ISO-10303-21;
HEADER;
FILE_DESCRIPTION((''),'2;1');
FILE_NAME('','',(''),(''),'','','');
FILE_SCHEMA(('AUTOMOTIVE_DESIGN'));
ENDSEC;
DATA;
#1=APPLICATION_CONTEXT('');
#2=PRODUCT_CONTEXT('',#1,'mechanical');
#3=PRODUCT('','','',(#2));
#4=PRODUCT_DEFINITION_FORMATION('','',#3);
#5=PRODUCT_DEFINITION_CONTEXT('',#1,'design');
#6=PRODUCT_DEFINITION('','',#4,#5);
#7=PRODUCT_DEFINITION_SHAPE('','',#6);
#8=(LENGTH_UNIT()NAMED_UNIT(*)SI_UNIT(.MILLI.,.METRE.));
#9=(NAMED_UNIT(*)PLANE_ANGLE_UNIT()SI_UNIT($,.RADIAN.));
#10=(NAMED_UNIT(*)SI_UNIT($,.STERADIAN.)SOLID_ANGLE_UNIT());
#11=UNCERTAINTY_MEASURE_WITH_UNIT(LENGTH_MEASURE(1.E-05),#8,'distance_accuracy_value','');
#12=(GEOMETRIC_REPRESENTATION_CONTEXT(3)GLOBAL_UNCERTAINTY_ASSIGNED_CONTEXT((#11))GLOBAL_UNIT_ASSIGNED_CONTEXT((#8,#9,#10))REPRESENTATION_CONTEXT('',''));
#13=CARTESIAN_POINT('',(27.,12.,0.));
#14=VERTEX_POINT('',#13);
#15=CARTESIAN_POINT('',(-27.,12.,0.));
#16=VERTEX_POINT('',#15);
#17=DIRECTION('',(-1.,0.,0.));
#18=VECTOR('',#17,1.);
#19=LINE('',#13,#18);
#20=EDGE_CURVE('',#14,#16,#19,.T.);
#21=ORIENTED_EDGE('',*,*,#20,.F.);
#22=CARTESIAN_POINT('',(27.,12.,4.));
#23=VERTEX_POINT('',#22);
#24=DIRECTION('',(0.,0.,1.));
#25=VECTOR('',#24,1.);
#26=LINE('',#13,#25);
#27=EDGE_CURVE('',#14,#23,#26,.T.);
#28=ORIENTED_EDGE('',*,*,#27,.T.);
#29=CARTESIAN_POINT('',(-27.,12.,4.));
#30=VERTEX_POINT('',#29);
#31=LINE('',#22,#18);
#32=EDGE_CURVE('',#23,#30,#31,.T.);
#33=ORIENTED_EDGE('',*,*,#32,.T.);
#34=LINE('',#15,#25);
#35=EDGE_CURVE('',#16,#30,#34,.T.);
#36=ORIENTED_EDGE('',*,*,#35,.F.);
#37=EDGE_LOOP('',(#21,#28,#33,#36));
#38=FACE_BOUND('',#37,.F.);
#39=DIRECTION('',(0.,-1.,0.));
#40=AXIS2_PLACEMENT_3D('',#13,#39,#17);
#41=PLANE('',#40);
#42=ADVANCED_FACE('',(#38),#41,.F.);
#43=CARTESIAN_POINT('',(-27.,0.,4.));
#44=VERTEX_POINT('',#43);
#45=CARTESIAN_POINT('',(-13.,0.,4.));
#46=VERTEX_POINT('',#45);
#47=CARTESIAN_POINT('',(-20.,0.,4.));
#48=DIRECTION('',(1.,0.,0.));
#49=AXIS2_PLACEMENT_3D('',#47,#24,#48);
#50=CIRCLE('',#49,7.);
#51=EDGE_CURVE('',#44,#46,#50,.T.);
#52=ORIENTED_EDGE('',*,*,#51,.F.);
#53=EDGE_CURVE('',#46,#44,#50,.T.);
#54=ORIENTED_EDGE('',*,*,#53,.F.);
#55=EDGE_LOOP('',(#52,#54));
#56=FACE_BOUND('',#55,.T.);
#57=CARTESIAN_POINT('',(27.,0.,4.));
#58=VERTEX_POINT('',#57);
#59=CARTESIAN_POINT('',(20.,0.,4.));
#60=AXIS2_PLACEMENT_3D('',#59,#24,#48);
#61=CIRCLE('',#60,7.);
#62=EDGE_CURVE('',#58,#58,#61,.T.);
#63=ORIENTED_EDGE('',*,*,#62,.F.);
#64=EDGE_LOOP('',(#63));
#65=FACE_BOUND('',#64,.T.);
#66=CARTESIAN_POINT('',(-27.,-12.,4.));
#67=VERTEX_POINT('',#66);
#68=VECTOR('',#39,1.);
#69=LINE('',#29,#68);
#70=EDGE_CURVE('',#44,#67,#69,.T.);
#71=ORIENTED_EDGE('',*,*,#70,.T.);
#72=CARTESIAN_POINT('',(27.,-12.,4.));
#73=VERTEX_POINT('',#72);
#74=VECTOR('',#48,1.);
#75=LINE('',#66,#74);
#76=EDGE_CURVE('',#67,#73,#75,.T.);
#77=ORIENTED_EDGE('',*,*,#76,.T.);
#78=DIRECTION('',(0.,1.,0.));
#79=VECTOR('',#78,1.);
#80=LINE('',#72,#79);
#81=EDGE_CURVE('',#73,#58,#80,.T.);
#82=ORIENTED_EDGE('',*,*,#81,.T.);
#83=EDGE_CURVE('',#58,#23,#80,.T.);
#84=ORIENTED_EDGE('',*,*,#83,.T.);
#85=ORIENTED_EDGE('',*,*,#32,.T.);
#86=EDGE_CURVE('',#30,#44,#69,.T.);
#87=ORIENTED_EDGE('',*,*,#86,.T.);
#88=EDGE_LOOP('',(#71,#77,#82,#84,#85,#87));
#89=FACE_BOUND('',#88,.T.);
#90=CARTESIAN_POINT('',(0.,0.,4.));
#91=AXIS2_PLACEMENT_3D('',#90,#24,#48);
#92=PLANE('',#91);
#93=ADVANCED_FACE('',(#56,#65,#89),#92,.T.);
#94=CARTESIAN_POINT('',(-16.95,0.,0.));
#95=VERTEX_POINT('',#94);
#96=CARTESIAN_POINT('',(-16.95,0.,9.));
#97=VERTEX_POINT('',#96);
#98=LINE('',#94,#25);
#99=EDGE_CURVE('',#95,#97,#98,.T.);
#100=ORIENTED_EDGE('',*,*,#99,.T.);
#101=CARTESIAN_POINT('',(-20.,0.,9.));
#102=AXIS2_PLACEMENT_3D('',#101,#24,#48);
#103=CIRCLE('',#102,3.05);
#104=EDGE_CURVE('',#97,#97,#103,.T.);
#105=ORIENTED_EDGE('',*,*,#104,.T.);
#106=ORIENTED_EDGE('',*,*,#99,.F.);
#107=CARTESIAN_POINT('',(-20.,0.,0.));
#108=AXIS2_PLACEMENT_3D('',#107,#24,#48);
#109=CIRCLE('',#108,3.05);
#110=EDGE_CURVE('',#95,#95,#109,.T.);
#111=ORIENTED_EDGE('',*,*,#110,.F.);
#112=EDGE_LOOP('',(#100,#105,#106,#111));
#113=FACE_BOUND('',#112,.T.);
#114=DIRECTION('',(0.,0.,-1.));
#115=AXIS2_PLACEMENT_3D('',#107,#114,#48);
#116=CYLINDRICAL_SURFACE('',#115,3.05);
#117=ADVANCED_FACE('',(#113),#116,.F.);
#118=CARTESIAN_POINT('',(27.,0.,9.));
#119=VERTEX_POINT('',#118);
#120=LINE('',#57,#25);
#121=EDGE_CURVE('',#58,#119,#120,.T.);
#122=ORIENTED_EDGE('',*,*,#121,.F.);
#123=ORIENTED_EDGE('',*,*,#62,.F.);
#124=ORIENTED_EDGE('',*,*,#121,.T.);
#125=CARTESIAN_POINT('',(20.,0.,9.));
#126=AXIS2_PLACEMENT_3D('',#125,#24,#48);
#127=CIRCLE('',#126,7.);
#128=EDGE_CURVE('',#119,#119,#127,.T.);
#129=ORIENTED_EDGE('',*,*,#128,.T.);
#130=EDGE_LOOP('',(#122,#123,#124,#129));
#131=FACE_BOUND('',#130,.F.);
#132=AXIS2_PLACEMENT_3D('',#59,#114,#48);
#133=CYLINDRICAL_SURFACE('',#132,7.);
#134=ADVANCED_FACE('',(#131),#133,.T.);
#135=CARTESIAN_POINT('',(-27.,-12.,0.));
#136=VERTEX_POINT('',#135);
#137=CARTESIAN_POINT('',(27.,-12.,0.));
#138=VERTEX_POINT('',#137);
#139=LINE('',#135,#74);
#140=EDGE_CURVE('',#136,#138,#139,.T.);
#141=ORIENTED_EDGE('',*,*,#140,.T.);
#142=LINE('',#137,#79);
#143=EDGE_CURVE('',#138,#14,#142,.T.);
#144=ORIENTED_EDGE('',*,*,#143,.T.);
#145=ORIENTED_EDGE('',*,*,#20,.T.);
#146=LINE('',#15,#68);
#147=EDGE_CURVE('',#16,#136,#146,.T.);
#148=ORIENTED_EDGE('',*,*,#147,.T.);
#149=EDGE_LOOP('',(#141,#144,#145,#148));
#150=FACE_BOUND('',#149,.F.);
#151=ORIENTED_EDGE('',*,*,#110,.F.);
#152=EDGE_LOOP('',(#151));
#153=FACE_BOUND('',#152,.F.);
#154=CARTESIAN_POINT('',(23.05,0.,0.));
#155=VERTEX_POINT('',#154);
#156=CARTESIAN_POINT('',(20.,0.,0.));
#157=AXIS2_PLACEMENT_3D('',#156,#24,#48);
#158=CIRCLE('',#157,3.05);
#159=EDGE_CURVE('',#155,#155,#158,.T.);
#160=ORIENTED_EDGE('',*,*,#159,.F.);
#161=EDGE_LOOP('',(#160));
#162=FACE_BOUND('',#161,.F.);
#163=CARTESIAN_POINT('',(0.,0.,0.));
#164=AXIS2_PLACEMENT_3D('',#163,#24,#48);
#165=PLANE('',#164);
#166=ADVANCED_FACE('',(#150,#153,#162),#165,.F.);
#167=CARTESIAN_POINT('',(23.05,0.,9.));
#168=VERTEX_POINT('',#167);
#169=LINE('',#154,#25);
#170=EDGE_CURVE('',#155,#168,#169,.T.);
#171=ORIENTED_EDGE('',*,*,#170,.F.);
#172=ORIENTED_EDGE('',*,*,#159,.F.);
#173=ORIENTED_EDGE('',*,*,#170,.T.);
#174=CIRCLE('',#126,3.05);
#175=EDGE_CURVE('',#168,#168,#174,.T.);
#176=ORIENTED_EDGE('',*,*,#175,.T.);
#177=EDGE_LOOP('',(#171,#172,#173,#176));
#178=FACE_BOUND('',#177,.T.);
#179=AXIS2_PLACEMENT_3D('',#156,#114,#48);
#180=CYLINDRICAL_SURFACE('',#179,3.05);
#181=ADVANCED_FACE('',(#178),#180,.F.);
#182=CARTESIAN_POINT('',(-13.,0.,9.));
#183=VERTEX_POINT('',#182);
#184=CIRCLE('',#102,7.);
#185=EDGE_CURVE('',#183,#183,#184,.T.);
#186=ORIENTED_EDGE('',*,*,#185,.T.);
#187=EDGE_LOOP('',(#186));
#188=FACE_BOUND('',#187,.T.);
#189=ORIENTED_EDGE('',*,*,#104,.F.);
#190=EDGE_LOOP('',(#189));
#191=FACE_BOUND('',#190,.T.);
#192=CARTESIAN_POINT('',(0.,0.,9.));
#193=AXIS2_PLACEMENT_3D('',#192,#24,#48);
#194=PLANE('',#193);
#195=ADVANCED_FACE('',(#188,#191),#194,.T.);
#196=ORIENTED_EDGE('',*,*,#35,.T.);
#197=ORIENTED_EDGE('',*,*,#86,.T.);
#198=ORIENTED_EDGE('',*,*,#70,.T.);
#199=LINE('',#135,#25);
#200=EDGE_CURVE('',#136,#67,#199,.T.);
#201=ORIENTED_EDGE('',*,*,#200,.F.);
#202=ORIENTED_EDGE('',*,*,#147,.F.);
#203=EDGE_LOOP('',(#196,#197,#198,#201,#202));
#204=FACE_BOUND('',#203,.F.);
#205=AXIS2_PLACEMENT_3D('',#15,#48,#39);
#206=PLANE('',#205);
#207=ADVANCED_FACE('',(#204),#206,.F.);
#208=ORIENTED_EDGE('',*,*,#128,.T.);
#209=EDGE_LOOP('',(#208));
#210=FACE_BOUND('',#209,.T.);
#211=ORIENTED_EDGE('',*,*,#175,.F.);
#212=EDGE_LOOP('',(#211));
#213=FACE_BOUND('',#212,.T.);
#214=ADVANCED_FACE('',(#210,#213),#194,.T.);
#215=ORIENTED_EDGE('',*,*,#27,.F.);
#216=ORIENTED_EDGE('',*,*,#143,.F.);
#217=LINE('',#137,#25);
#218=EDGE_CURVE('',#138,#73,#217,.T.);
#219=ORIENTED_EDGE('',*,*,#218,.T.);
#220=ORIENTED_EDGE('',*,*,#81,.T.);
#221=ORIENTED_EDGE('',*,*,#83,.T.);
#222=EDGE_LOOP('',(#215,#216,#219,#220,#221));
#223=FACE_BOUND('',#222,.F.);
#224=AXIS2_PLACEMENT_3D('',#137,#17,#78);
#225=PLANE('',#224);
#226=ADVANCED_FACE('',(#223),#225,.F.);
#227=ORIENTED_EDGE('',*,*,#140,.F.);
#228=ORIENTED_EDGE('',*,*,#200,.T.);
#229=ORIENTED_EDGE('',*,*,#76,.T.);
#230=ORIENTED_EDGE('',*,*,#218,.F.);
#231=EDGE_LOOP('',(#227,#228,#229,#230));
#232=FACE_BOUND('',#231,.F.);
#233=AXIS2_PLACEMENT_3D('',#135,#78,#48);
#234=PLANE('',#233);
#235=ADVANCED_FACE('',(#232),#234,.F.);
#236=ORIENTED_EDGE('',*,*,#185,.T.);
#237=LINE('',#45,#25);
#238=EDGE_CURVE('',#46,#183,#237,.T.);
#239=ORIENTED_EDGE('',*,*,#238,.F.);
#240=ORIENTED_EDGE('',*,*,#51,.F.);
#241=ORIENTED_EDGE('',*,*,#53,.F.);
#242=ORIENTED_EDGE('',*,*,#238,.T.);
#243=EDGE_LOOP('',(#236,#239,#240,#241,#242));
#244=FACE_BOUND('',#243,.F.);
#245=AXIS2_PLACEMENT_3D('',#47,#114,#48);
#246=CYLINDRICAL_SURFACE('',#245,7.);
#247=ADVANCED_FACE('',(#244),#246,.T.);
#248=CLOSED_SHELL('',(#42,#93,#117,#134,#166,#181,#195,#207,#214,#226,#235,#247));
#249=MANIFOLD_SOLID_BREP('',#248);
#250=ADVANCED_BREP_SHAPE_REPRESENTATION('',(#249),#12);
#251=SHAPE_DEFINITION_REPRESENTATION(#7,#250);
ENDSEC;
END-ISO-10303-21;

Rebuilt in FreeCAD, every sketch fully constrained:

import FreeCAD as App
import Part
import Sketcher

V = App.Vector

doc = App.newDocument("Part")
body = doc.addObject("PartDesign::Body", "Body")

# Sketch on XY plane
sketch1 = body.newObject("Sketcher::SketchObject", "Sketch")
sketch1.AttachmentSupport = (doc.getObject("XY_Plane"), [""])
sketch1.MapMode = "FlatFace"
sketch1.addGeometry([
    Part.LineSegment(V(-27, 12, 0), V(-27, -12, 0)),  # 0
    Part.LineSegment(V(-27, -12, 0), V(27, -12, 0)),  # 1
    Part.LineSegment(V(27, -12, 0), V(27, 12, 0)),  # 2
    Part.LineSegment(V(27, 12, 0), V(-27, 12, 0)),  # 3
    Part.Circle(V(-20, 0, 0), V(0, 0, 1), 3),  # 4
    Part.Circle(V(20, 0, 0), V(0, 0, 1), 3),  # 5
], False)
sketch1.addConstraint([
    Sketcher.Constraint("Coincident", 0, 2, 1, 1),
    Sketcher.Constraint("Coincident", 1, 2, 2, 1),
    Sketcher.Constraint("Coincident", 2, 2, 3, 1),
    Sketcher.Constraint("Coincident", 3, 2, 0, 1),
    Sketcher.Constraint("Vertical", 0),
    Sketcher.Constraint("Horizontal", 1),
    Sketcher.Constraint("Vertical", 2),
    Sketcher.Constraint("Horizontal", 3),
    Sketcher.Constraint("Equal", 4, 5),
    Sketcher.Constraint("Symmetric", 4, 3, 5, 3, -1, 1),
    Sketcher.Constraint("Symmetric", 0, 2, 2, 2, -1, 1),
    Sketcher.Constraint("PointOnObject", 4, 3, -1),
    Sketcher.Constraint("Diameter", 4, 6.1),
    Sketcher.Constraint("DistanceX", 1, 1, 1, 2, 54.0),
    Sketcher.Constraint("DistanceY", 0, 2, 0, 1, 24.0),
    Sketcher.Constraint("DistanceX", 4, 3, -1, 1, 20.0),
])
pad1 = body.newObject("PartDesign::Pad", "Pad")
pad1.Profile = sketch1
pad1.Length = 4

# Sketch on XY plane
sketch2 = body.newObject("Sketcher::SketchObject", "Sketch001")
sketch2.AttachmentSupport = (doc.getObject("XY_Plane"), [""])
sketch2.MapMode = "FlatFace"
sketch2.AttachmentOffset = App.Placement(V(0, 0, 4), App.Rotation())
sketch2.addGeometry([
    Part.Circle(V(-20, 0, 0), V(0, 0, 1), 7),
    Part.Circle(V(-20, 0, 0), V(0, 0, 1), 3),
    Part.Circle(V(20, 0, 0), V(0, 0, 1), 7),
    Part.Circle(V(20, 0, 0), V(0, 0, 1), 3),
], False)
sketch2.addConstraint([
    Sketcher.Constraint("Coincident", 1, 3, 0, 3),
    Sketcher.Constraint("Coincident", 3, 3, 2, 3),
    Sketcher.Constraint("Equal", 0, 2),
    Sketcher.Constraint("Equal", 1, 3),
    Sketcher.Constraint("Symmetric", 0, 3, 2, 3, -1, 1),
    Sketcher.Constraint("PointOnObject", 0, 3, -1),
    Sketcher.Constraint("Diameter", 0, 14.0),
    Sketcher.Constraint("Diameter", 1, 6.1),
    Sketcher.Constraint("DistanceX", 0, 3, -1, 1, 20.0),
])
pad2 = body.newObject("PartDesign::Pad", "Pad001")
pad2.Profile = sketch2
pad2.Length = 5

doc.recompute()
